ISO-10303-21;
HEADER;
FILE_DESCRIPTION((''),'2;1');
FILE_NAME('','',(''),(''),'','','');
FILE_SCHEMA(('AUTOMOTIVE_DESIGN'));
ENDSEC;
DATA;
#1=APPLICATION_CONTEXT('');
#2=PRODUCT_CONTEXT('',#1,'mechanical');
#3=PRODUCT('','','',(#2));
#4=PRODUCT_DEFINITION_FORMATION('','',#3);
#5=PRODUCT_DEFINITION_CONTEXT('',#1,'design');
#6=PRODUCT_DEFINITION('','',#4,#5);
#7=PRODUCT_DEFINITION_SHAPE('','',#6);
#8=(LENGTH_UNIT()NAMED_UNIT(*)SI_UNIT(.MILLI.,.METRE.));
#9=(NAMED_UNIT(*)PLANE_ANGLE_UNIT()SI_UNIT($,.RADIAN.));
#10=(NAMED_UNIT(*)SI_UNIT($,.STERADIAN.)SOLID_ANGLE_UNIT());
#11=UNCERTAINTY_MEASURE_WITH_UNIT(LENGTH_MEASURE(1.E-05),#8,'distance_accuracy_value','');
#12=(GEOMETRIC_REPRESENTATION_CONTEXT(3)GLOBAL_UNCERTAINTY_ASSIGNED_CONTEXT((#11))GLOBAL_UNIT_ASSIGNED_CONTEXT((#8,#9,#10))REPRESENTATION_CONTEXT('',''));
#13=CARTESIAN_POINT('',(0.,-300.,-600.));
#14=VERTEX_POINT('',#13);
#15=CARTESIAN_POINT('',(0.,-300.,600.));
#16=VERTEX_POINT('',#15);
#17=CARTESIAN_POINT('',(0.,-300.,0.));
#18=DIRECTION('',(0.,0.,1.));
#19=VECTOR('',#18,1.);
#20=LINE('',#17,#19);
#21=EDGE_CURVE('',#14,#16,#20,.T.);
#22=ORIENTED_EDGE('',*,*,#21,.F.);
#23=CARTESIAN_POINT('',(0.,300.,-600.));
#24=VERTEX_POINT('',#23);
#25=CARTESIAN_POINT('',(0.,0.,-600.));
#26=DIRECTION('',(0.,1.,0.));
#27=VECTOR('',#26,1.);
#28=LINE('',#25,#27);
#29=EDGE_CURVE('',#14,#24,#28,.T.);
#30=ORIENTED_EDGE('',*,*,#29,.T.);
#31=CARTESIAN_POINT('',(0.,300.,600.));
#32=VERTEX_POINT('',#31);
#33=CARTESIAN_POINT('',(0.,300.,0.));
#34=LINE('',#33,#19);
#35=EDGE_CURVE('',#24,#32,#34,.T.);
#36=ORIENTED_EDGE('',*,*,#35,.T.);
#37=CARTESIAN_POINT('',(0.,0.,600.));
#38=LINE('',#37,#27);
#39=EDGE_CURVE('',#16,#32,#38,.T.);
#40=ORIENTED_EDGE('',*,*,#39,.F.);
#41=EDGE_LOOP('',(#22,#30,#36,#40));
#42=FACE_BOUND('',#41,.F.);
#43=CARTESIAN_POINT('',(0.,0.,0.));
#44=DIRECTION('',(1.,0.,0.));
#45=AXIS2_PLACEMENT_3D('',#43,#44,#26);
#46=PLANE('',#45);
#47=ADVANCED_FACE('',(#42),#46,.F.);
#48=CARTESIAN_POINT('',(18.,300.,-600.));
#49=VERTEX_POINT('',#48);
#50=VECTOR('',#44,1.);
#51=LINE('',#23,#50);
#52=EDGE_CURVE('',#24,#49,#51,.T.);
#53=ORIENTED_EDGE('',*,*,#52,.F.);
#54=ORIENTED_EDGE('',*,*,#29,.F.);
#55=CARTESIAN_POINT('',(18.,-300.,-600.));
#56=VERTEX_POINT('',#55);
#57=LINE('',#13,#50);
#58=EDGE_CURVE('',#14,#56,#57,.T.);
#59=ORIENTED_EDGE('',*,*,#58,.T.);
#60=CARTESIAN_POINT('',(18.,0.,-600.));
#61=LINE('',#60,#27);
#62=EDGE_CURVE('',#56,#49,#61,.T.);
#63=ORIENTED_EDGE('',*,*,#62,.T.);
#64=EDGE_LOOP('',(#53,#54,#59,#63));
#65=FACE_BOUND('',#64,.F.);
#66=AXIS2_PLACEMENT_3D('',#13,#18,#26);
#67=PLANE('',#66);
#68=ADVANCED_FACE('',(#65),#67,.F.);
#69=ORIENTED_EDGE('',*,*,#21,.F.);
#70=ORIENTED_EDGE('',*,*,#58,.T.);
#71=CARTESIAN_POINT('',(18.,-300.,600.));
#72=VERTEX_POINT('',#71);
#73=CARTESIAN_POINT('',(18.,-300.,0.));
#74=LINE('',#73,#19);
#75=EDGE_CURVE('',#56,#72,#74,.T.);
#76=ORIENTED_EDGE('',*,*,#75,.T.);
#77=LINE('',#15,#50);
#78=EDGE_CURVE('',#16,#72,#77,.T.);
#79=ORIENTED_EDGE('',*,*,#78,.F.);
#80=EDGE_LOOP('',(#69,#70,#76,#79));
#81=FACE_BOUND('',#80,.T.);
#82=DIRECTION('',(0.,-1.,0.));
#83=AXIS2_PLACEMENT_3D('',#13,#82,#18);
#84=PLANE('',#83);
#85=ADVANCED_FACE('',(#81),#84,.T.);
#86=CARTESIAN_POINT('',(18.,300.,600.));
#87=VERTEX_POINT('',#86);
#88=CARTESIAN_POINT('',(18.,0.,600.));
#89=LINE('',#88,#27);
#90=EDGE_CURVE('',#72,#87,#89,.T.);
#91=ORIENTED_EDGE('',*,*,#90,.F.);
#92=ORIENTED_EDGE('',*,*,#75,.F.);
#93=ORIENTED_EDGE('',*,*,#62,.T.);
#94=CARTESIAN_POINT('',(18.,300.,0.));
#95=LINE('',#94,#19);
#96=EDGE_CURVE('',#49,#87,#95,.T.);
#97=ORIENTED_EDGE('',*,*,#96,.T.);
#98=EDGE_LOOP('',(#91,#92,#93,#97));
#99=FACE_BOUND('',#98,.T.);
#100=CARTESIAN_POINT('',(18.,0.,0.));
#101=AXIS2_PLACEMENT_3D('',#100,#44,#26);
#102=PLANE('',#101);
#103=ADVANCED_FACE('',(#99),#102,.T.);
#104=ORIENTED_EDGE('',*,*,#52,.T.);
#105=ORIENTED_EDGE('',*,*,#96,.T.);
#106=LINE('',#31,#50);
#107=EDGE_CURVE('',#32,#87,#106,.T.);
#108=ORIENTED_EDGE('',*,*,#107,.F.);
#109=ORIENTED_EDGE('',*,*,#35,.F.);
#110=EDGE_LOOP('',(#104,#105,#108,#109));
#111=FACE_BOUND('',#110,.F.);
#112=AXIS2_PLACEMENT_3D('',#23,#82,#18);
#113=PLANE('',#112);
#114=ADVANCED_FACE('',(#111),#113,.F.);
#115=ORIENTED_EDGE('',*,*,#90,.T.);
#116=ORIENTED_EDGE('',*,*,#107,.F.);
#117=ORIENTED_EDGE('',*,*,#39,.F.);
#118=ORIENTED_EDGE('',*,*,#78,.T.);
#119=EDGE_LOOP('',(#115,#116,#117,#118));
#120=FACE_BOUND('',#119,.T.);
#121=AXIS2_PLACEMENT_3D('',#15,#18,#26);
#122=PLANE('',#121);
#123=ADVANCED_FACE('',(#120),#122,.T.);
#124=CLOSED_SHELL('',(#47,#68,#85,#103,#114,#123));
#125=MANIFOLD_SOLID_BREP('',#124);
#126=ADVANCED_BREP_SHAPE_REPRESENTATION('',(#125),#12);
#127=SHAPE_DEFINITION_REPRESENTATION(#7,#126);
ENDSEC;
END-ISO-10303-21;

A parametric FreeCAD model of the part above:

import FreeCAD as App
import Part
import Sketcher

V = App.Vector
Q = App.Units.Quantity


def add_polygon(sketch, points):
    """Adds a closed chain of lines whose ends are joined by coincident constraints."""
    first, n = sketch.GeometryCount, len(points)
    for a, b in zip(points, points[1:] + points[:1]):
        sketch.addGeometry(Part.LineSegment(App.Vector(*a, 0), App.Vector(*b, 0)), False)
    for i in range(n):
        sketch.addConstraint(Sketcher.Constraint("Coincident", first + i, 2, first + (i + 1) % n, 1))

doc = App.newDocument("Part")
body = doc.addObject("PartDesign::Body", "Body")

# Sketch on YZ plane
sketch1 = body.newObject("Sketcher::SketchObject", "Sketch")
sketch1.AttachmentSupport = (doc.getObject("YZ_Plane"), [""])
sketch1.MapMode = "FlatFace"
add_polygon(sketch1, [(-300, 600), (-300, -600), (300, -600), (300, 600)])  # lines 0-3
sketch1.addConstraint([
    Sketcher.Constraint("Vertical", 0),
    Sketcher.Constraint("Horizontal", 1),
    Sketcher.Constraint("Vertical", 2),
    Sketcher.Constraint("Horizontal", 3),
    Sketcher.Constraint("Symmetric", 0, 2, 2, 2, -1, 1),
    Sketcher.Constraint("DistanceX", 1, 1, 1, 2, Q("600 mm")),
    Sketcher.Constraint("DistanceY", 0, 2, 0, 1, Q("1200 mm")),
])
pad1 = body.newObject("PartDesign::Pad", "Pad")
pad1.Profile = sketch1
pad1.Length = 18

# Sketch on YZ plane
sketch2 = body.newObject("Sketcher::SketchObject", "Sketch001")
sketch2.AttachmentSupport = (doc.getObject("YZ_Plane"), [""])
sketch2.MapMode = "FlatFace"
add_polygon(sketch2, [(-300, 600), (-300, -600), (300, -600), (300, 600)])  # lines 0-3
sketch2.addConstraint([
    Sketcher.Constraint("Vertical", 0),
    Sketcher.Constraint("Horizontal", 1),
    Sketcher.Constraint("Vertical", 2),
    Sketcher.Constraint("Horizontal", 3),
    Sketcher.Constraint("Symmetric", 0, 2, 2, 2, -1, 1),
    Sketcher.Constraint("DistanceX", 1, 1, 1, 2, Q("600 mm")),
    Sketcher.Constraint("DistanceY", 0, 2, 0, 1, Q("1200 mm")),
])
pad2 = body.newObject("PartDesign::Pad", "Pad001")
pad2.Profile = sketch2
pad2.Length = 18

doc.recompute()
